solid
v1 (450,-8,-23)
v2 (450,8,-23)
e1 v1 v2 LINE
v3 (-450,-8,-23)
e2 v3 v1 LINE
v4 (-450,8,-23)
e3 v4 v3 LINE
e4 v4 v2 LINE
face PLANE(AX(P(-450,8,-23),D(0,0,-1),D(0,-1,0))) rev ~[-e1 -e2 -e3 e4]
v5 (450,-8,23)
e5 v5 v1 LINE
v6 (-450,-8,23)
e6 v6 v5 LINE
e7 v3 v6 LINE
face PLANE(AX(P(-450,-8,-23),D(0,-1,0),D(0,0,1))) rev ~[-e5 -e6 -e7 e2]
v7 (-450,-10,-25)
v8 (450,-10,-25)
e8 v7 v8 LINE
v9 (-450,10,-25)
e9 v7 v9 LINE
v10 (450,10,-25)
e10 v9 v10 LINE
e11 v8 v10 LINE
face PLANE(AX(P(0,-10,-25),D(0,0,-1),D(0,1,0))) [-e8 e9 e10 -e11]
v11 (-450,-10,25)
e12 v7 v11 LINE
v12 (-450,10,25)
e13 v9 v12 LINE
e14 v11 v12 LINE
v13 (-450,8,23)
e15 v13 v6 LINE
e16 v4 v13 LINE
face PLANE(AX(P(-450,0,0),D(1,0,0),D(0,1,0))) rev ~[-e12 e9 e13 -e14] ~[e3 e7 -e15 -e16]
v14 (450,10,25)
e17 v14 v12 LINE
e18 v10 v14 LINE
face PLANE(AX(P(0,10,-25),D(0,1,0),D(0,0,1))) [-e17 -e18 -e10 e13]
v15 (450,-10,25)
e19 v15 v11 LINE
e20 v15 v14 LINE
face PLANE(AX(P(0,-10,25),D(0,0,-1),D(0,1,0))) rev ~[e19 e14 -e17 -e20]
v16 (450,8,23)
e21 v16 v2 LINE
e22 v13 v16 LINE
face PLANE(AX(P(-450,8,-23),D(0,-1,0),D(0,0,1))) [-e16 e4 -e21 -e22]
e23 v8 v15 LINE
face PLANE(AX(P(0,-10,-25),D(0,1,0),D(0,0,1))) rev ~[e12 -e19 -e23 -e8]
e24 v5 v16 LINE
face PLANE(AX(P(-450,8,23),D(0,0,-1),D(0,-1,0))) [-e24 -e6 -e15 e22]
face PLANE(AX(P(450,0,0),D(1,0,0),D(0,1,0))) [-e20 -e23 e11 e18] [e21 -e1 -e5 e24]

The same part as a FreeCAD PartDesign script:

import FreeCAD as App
import Part
import Sketcher
Q = App.Units.Quantity

doc = App.newDocument("Part")
params = doc.addObject("Spreadsheet::Sheet", "Params")
for row, (alias, value) in enumerate([
    ("sketch1_width", "20 mm"),
    ("sketch1_height", "50 mm"),
    ("pad1_length", "900 mm"),
    ("sketch2_width", "16 mm"),
    ("sketch2_height", "46 mm"),
], start=1):
    params.set(f"A{row}", alias)
    params.set(f"B{row}", "=" + value)
    params.setAlias(f"B{row}", alias)

body = doc.addObject("PartDesign::Body", "Body")

# Sketch on YZ plane
sketch1 = doc.addObject("Sketcher::SketchObject", "Sketch")
body.addObject(sketch1)
sketch1.AttachmentSupport = (doc.YZ_Plane, [""])
sketch1.MapMode = "FlatFace"
sketch1.addGeometry([
    Part.LineSegment(App.Vector(-10, 25, 0), App.Vector(-10, -25, 0)),
    Part.LineSegment(App.Vector(-10, -25, 0), App.Vector(10, -25, 0)),
    Part.LineSegment(App.Vector(10, -25, 0), App.Vector(10, 25, 0)),
    Part.LineSegment(App.Vector(10, 25, 0), App.Vector(-10, 25, 0)),
], False)
sketch1.addConstraint([
    Sketcher.Constraint("Coincident", 0, 2, 1, 1),
    Sketcher.Constraint("Coincident", 1, 2, 2, 1),
    Sketcher.Constraint("Coincident", 2, 2, 3, 1),
    Sketcher.Constraint("Coincident", 3, 2, 0, 1),
    Sketcher.Constraint("Vertical", 0),
    Sketcher.Constraint("Horizontal", 1),
    Sketcher.Constraint("Vertical", 2),
    Sketcher.Constraint("Horizontal", 3),
    Sketcher.Constraint("Symmetric", 0, 2, 2, 2, -1, 1),
    Sketcher.Constraint("DistanceX", 1, 1, 1, 2, Q("20 mm")),
    Sketcher.Constraint("DistanceY", 0, 2, 0, 1, Q("50 mm")),
])
sketch1.setExpression("Constraints[9]", "Params.sketch1_width")
sketch1.setExpression("Constraints[10]", "Params.sketch1_height")
pad1 = doc.addObject("PartDesign::Pad", "Pad")
body.addObject(pad1)
pad1.Profile = sketch1
pad1.setExpression("Length", "Params.pad1_length")
pad1.Midplane = True

# Sketch on YZ plane
sketch2 = doc.addObject("Sketcher::SketchObject", "Sketch001")
body.addObject(sketch2)
sketch2.AttachmentSupport = (doc.YZ_Plane, [""])
sketch2.MapMode = "FlatFace"
sketch2.AttachmentOffset = App.Placement(App.Vector(0, 0, -450), App.Rotation())
sketch2.addGeometry([
    Part.LineSegment(App.Vector(8, 23, 0), App.Vector(8, -23, 0)),
    Part.LineSegment(App.Vector(8, -23, 0), App.Vector(-8, -23, 0)),
    Part.LineSegment(App.Vector(-8, -23, 0), App.Vector(-8, 23, 0)),
    Part.LineSegment(App.Vector(-8, 23, 0), App.Vector(8, 23, 0)),
], False)
sketch2.addConstraint([
    Sketcher.Constraint("Coincident", 0, 2, 1, 1),
    Sketcher.Constraint("Coincident", 1, 2, 2, 1),
    Sketcher.Constraint("Coincident", 2, 2, 3, 1),
    Sketcher.Constraint("Coincident", 3, 2, 0, 1),
    Sketcher.Constraint("Vertical", 0),
    Sketcher.Constraint("Horizontal", 1),
    Sketcher.Constraint("Vertical", 2),
    Sketcher.Constraint("Horizontal", 3),
    Sketcher.Constraint("Symmetric", 0, 2, 2, 2, -1, 1),
    Sketcher.Constraint("DistanceX", 1, 2, 1, 1, Q("16 mm")),
    Sketcher.Constraint("DistanceY", 0, 2, 0, 1, Q("46 mm")),
])
sketch2.setExpression("Constraints[9]", "Params.sketch2_width")
sketch2.setExpression("Constraints[10]", "Params.sketch2_height")
pocket1 = doc.addObject("PartDesign::Pocket", "Pocket")
body.addObject(pocket1)
pocket1.Profile = sketch2
pocket1.Type = "ThroughAll"
pocket1.Reversed = True

doc.recompute()
